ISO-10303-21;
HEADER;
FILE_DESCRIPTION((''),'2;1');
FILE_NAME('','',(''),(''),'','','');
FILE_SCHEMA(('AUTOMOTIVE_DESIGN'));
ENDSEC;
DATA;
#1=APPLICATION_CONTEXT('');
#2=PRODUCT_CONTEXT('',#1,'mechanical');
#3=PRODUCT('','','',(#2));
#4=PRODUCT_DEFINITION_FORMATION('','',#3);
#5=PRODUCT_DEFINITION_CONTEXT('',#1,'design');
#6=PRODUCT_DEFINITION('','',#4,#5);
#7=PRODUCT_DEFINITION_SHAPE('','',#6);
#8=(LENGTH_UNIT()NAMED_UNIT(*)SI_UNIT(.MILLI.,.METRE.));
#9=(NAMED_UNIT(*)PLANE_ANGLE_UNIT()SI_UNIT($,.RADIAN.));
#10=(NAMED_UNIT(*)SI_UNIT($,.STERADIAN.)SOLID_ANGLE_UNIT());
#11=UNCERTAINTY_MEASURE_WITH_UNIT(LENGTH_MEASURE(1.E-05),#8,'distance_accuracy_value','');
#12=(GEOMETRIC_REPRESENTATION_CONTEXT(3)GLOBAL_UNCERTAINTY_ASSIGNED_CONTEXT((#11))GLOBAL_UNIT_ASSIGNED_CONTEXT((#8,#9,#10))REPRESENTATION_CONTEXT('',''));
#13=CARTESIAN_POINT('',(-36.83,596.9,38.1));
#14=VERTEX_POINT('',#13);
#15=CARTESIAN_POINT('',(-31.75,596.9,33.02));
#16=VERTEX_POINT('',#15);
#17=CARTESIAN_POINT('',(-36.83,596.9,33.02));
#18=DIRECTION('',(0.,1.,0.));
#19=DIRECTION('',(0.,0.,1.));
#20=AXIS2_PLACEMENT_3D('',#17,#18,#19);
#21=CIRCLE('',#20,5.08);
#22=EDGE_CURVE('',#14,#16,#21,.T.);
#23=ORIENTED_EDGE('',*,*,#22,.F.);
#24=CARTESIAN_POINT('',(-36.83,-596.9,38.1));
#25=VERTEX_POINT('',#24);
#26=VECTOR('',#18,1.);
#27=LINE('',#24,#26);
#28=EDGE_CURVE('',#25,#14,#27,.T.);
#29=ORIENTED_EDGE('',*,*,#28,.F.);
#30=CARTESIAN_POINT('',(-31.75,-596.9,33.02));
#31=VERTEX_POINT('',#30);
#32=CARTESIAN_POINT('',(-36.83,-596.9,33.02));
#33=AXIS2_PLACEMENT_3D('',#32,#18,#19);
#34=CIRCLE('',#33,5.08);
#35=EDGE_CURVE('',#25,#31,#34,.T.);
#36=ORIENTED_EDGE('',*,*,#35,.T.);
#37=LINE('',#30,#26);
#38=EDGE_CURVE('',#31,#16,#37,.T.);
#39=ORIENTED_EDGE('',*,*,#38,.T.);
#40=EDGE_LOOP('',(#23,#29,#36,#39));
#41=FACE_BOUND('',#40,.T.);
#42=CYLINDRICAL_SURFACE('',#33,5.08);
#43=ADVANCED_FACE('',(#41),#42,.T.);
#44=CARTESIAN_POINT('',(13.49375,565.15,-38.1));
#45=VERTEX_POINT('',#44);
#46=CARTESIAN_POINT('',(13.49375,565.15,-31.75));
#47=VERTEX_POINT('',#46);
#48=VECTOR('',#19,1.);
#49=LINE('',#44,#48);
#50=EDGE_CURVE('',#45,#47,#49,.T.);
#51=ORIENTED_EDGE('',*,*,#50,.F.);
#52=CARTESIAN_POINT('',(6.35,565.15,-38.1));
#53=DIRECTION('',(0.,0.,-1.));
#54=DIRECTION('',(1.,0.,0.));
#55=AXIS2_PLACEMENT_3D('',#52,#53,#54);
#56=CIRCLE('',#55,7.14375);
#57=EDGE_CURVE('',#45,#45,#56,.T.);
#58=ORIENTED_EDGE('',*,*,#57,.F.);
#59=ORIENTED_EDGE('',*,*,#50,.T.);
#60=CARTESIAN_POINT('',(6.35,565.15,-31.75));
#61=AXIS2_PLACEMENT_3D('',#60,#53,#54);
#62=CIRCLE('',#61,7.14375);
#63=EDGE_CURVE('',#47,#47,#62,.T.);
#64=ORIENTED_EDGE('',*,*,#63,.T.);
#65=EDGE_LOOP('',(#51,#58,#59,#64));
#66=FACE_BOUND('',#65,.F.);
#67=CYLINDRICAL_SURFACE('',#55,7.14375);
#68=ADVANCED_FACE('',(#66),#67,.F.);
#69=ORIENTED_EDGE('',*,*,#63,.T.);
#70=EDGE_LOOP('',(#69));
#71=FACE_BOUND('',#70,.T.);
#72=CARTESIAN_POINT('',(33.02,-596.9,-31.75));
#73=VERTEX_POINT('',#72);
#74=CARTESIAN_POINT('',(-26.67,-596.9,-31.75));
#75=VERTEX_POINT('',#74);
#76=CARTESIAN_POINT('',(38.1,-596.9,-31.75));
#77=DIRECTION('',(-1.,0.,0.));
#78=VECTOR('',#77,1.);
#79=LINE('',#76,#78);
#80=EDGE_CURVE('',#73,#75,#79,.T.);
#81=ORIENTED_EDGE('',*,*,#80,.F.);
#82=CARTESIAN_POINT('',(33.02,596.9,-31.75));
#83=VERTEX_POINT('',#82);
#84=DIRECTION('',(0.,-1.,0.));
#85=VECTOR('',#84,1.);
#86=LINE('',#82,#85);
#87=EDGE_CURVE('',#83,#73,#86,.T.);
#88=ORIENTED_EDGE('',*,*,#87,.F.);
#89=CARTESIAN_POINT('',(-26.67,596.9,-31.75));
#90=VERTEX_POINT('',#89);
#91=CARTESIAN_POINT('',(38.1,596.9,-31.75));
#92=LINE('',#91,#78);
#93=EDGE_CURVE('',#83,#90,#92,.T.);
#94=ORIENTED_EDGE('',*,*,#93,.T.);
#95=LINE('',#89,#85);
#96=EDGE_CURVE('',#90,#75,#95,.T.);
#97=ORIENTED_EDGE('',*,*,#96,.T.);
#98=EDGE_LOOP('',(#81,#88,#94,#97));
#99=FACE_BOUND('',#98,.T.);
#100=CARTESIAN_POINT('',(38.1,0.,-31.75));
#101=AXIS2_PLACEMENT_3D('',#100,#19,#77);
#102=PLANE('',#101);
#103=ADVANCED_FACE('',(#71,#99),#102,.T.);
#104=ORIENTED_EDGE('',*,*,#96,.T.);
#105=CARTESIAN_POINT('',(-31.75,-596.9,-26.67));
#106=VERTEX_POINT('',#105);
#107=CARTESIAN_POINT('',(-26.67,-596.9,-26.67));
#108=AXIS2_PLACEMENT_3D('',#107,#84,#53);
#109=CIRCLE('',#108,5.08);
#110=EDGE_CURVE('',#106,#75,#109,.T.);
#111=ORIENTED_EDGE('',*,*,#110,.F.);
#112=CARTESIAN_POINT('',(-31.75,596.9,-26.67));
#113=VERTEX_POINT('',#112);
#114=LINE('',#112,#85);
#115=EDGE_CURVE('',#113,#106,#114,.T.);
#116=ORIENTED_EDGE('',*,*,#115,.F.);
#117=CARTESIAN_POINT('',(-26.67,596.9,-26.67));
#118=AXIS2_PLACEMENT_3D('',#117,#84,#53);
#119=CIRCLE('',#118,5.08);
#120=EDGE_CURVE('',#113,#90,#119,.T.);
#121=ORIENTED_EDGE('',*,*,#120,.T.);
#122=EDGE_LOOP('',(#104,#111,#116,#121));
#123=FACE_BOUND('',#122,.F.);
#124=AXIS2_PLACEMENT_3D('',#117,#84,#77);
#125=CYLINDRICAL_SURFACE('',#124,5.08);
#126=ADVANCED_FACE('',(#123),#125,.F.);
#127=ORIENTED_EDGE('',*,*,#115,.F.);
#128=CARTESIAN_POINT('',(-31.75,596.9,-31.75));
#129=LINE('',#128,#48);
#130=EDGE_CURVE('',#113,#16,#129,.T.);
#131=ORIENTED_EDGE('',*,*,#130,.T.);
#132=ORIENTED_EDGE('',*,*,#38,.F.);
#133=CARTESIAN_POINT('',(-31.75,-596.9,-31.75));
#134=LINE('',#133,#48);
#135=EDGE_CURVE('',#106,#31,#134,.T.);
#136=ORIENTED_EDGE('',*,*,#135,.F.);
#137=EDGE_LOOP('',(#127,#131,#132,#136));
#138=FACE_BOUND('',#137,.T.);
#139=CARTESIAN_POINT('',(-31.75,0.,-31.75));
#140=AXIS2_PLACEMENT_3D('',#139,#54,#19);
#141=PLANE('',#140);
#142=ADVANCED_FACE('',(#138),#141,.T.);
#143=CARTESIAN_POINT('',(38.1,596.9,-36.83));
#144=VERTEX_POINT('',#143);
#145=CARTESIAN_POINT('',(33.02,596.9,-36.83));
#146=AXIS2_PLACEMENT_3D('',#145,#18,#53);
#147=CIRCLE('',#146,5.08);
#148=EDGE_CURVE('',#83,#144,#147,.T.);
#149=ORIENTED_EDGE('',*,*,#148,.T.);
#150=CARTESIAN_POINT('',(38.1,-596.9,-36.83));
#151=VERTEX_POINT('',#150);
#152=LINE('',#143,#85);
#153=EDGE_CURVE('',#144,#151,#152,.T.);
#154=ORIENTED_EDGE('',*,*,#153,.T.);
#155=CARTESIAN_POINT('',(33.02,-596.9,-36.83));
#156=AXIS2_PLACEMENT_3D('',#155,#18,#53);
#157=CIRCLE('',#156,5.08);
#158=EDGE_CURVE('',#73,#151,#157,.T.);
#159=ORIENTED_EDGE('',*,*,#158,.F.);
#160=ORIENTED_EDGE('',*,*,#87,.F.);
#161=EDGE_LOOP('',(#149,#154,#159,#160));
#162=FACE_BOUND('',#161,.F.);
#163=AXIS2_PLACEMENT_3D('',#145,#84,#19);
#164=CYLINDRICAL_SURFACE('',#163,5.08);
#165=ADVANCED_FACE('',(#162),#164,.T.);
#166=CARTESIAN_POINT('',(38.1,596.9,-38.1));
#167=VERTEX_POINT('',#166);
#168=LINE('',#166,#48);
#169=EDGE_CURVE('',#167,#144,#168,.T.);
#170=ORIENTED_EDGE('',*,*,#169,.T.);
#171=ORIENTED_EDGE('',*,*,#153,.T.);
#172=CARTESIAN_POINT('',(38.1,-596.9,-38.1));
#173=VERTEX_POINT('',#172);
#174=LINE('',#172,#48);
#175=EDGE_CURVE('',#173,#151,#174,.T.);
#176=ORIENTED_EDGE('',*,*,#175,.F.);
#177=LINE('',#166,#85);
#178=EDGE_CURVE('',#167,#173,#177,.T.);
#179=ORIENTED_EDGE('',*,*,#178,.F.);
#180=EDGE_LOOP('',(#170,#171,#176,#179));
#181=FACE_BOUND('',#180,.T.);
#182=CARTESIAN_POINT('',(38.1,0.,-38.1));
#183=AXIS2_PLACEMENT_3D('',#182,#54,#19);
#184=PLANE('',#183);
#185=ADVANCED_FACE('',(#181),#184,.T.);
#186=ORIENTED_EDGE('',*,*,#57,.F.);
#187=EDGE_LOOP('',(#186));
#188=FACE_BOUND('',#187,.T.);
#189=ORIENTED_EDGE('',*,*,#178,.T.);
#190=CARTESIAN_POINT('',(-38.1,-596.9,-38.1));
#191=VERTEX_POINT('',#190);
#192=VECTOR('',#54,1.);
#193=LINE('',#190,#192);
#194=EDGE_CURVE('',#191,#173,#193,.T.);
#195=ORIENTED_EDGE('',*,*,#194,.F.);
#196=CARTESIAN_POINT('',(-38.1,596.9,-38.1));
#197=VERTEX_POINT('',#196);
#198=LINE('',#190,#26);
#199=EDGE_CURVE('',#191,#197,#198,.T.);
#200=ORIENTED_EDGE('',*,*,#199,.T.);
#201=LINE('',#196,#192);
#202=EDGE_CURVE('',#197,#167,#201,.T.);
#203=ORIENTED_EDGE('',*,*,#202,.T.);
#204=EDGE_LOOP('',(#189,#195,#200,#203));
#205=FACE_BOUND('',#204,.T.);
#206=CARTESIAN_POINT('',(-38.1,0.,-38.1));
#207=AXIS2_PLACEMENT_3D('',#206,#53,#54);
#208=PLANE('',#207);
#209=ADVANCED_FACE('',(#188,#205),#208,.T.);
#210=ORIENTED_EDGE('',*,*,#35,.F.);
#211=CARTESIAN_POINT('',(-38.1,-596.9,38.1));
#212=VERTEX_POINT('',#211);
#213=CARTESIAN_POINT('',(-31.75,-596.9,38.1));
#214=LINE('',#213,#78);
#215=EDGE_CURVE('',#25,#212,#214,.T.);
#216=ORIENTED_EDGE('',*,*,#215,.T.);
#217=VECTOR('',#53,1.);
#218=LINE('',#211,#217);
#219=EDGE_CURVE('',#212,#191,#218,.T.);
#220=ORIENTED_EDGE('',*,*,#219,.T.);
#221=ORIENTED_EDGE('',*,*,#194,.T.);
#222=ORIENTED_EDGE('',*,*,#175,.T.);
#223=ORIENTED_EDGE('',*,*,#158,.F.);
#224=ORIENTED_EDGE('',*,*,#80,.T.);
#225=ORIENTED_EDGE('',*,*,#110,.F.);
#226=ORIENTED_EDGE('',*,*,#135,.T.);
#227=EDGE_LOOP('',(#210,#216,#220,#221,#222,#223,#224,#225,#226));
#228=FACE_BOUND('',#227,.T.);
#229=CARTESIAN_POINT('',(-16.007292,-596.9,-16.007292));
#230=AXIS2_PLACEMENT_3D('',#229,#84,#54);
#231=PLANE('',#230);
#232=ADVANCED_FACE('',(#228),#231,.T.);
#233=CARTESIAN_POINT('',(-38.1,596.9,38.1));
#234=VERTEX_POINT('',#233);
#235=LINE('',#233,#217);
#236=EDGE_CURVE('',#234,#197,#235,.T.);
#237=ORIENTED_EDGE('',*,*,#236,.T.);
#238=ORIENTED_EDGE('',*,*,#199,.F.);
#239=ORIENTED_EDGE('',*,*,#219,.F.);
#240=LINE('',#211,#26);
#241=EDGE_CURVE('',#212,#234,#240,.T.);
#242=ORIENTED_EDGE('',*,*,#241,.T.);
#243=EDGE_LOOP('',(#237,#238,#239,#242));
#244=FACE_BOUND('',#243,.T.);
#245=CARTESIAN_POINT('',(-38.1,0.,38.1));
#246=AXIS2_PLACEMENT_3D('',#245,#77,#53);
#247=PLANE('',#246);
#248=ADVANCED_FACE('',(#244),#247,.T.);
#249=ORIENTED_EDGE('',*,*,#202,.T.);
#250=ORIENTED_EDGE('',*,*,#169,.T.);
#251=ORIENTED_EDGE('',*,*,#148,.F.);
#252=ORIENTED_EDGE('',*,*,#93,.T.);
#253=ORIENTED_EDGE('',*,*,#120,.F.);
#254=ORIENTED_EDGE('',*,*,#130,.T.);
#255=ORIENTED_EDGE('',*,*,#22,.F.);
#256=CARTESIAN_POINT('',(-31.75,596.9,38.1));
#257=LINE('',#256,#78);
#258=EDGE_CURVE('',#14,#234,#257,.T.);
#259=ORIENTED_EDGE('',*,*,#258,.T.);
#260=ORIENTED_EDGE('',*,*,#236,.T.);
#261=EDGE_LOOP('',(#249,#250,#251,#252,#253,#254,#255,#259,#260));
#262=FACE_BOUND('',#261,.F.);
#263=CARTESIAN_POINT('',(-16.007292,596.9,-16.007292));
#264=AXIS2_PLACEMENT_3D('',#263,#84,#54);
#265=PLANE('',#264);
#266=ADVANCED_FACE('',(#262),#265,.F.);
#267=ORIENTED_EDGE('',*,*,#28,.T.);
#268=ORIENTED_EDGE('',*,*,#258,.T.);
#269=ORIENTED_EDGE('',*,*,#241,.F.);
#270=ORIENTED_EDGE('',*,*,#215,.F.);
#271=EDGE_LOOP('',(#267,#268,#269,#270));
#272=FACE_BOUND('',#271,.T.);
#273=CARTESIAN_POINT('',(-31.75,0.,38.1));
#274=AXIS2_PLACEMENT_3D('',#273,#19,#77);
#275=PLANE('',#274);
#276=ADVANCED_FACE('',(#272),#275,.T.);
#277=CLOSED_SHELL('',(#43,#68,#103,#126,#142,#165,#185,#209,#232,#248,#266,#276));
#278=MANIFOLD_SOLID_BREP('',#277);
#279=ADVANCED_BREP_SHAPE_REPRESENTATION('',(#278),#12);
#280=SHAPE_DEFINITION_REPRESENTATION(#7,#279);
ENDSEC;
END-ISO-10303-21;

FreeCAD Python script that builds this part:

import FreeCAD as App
import Part
import Sketcher
Q = App.Units.Quantity


def edges_at(feature, points):
    """Names of the edges that pass closest to the given points."""
    edges = feature.Shape.Edges
    near = lambda p: min(range(len(edges)), key=lambda i: edges[i].distToShape(Part.Vertex(*p))[0])
    return sorted({f"Edge{near(p) + 1}" for p in points})

doc = App.newDocument("Part")
body = doc.addObject("PartDesign::Body", "Body")

# Sketch on XZ plane
sketch1 = body.newObject("Sketcher::SketchObject", "Sketch")
sketch1.AttachmentSupport = (doc.getObject("XZ_Plane"), [""])
sketch1.MapMode = "FlatFace"
sketch1.addGeometry([
    Part.LineSegment(App.Vector(-38.1, -38.1, 0), App.Vector(38.1, -38.1, 0)),  # 0
    Part.LineSegment(App.Vector(38.1, -38.1, 0), App.Vector(38.1, -31.75, 0)),  # 1
    Part.LineSegment(App.Vector(38.1, -31.75, 0), App.Vector(-31.75, -31.75, 0)),  # 2
    Part.LineSegment(App.Vector(-31.75, -31.75, 0), App.Vector(-31.75, 38.1, 0)),  # 3
    Part.LineSegment(App.Vector(-31.75, 38.1, 0), App.Vector(-38.1, 38.1, 0)),  # 4
    Part.LineSegment(App.Vector(-38.1, 38.1, 0), App.Vector(-38.1, -38.1, 0)),  # 5
], False)
sketch1.addConstraint([
    Sketcher.Constraint("Coincident", 0, 2, 1, 1),
    Sketcher.Constraint("Coincident", 1, 2, 2, 1),
    Sketcher.Constraint("Coincident", 2, 2, 3, 1),
    Sketcher.Constraint("Coincident", 3, 2, 4, 1),
    Sketcher.Constraint("Coincident", 4, 2, 5, 1),
    Sketcher.Constraint("Coincident", 5, 2, 0, 1),
    Sketcher.Constraint("Horizontal", 0),
    Sketcher.Constraint("Vertical", 1),
    Sketcher.Constraint("Horizontal", 2),
    Sketcher.Constraint("Vertical", 3),
    Sketcher.Constraint("Horizontal", 4),
    Sketcher.Constraint("Vertical", 5),
    Sketcher.Constraint("Symmetric", 0, 2, 4, 2, -1, 1),
    Sketcher.Constraint("Equal", 4, 1),
    Sketcher.Constraint("Equal", 2, 3),
    Sketcher.Constraint("DistanceX", 0, 1, 0, 2, Q("3 in")),
    Sketcher.Constraint("DistanceX", 2, 2, 2, 1, Q("2.75 in")),
])
pad1 = body.newObject("PartDesign::Pad", "Pad")
pad1.Profile = sketch1
pad1.Length = Q("47 in")
pad1.Midplane = True
doc.recompute()

fillet = body.newObject("PartDesign::Fillet", "Fillet")
fillet.Base = (pad1, edges_at(pad1, [(-31.75, 0, 38.1), (-31.75, 0, -31.75), (38.1, 0, -31.75)]))
fillet.Radius = Q("0.2 in")

# Sketch on XY plane
sketch2 = body.newObject("Sketcher::SketchObject", "Sketch001")
sketch2.AttachmentSupport = (doc.getObject("XY_Plane"), [""])
sketch2.MapMode = "FlatFace"
sketch2.AttachmentOffset = App.Placement(App.Vector(0, 0, -1.5 * 25.4), App.Rotation())
sketch2.addGeometry(Part.Circle(App.Vector(6.35, 565.15, 0), App.Vector(0, 0, 1), 7.14375), False)
sketch2.addConstraint([
    Sketcher.Constraint("Diameter", 0, Q("0.5625 in")),
    Sketcher.Constraint("DistanceX", -1, 1, 0, 3, Q("0.25 in")),
    Sketcher.Constraint("DistanceY", -1, 1, 0, 3, Q("22.25 in")),
])
pocket1 = body.newObject("PartDesign::Pocket", "Pocket")
pocket1.Profile = sketch2
pocket1.Length = Q("1 in")
pocket1.Reversed = True

doc.recompute()
